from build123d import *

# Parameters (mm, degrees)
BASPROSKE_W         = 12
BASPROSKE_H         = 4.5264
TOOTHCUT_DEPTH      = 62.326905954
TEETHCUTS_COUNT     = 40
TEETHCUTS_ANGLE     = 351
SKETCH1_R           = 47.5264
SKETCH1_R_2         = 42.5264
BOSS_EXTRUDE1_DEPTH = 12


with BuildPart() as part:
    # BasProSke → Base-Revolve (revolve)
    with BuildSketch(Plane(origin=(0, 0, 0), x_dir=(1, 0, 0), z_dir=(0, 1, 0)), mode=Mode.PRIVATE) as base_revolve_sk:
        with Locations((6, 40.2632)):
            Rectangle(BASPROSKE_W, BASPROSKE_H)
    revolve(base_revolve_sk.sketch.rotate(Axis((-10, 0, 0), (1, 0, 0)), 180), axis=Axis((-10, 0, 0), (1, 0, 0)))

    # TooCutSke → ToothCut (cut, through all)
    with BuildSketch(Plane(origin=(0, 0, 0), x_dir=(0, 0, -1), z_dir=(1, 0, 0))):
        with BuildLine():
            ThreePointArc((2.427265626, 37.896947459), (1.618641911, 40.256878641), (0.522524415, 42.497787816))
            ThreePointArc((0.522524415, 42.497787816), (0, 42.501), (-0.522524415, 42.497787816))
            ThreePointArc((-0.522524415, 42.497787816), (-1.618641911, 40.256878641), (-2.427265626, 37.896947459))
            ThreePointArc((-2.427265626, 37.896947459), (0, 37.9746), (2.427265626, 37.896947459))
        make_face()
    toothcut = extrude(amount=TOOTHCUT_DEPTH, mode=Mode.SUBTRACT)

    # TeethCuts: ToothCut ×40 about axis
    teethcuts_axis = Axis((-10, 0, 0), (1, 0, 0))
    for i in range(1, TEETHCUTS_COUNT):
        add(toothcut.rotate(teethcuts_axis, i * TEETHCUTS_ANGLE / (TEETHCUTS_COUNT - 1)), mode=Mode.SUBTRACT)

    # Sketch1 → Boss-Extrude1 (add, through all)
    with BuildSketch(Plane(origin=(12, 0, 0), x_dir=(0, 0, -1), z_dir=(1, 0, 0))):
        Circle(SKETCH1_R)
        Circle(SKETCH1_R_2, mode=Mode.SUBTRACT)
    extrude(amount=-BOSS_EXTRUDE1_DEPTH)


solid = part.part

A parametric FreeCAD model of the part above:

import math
import FreeCAD as App
import Part
import Sketcher


def add_polygon(sketch, points):
    """Adds a closed chain of lines whose ends are joined by coincident constraints."""
    first, n = sketch.GeometryCount, len(points)
    for a, b in zip(points, points[1:] + points[:1]):
        sketch.addGeometry(Part.LineSegment(App.Vector(*a, 0), App.Vector(*b, 0)), False)
    for i in range(n):
        sketch.addConstraint(Sketcher.Constraint("Coincident", first + i, 2, first + (i + 1) % n, 1))

doc = App.newDocument("Part")
params = doc.addObject("Spreadsheet::Sheet", "Params")
for row, (alias, value) in enumerate([
    ("sketch1_width", "12 mm"),
    ("revolution_angle", "360 deg"),
    ("sketch2_radius", "20 mm"),
    ("pad1_length", "12 mm"),
], start=1):
    params.set(f"A{row}", alias)
    params.set(f"B{row}", "=" + value)
    params.setAlias(f"B{row}", alias)

body = doc.addObject("PartDesign::Body", "Body")

# Sketch on XZ plane
sketch1 = body.newObject("Sketcher::SketchObject", "Sketch")
sketch1.AttachmentSupport = (doc.getObject("XZ_Plane"), [""])
sketch1.MapMode = "FlatFace"
add_polygon(sketch1, [(0, -42.5), (0, -38), (12, -38), (12, -42.5)])  # lines 0-3
sketch1.addConstraint([
    Sketcher.Constraint("Vertical", 0),
    Sketcher.Constraint("Horizontal", 1),
    Sketcher.Constraint("Vertical", 2),
    Sketcher.Constraint("Horizontal", 3),
    Sketcher.Constraint("PointOnObject", 0, 2, -2),
    Sketcher.Constraint("DistanceX", 1, 1, 1, 2, 12.0),
    Sketcher.Constraint("DistanceY", 0, 2, -1, 1, 38.0),
    Sketcher.Constraint("DistanceY", 0, 1, 0, 2, 4.5264),
])
sketch1.setExpression("Constraints[9]", "Params.sketch1_width")
revolution = body.newObject("PartDesign::Revolution", "Revolution")
revolution.Profile = sketch1
revolution.ReferenceAxis = (sketch1, ["H_Axis"])
revolution.setExpression("Angle", "Params.revolution_angle")

# Sketch on YZ plane
sketch2 = body.newObject("Sketcher::SketchObject", "Sketch001")
sketch2.AttachmentSupport = (doc.getObject("YZ_Plane"), [""])
sketch2.MapMode = "FlatFace"
sketch2.addGeometry([
    Part.ArcOfCircle(Part.Circle(App.Vector(32.6, 16.9, 0), App.Vector(0, 0, 1), 20), math.radians(-74.66), math.radians(-60.36)),
    Part.ArcOfCircle(Part.Circle(App.Vector(0, 0, 0), App.Vector(0, 0, 1), 42.5), math.radians(-0.7), math.radians(0.7)),
    Part.ArcOfCircle(Part.Circle(App.Vector(32.6, -16.9, 0), App.Vector(0, 0, 1), 20), math.radians(60.36), math.radians(74.66)),
    Part.ArcOfCircle(Part.Circle(App.Vector(0, 0, 0), App.Vector(0, 0, 1), 38), math.radians(-3.66), math.radians(3.66)),
], False)
sketch2.addConstraint([
    Sketcher.Constraint("Coincident", 0, 2, 1, 1),
    Sketcher.Constraint("Coincident", 1, 2, 2, 1),
    Sketcher.Constraint("Coincident", 2, 2, 3, 2),
    Sketcher.Constraint("Coincident", 3, 1, 0, 1),
    Sketcher.Constraint("Coincident", 1, 3, -1, 1),
    Sketcher.Constraint("Coincident", 3, 3, -1, 1),
    Sketcher.Constraint("Equal", 0, 2),
    Sketcher.Constraint("Symmetric", 0, 3, 2, 3, -1),
    Sketcher.Constraint("Radius", 0, 20.0),
    Sketcher.Constraint("Radius", 3, 37.9746),
    Sketcher.Constraint("Radius", 1, 42.501003),
    Sketcher.Constraint("DistanceX", -1, 1, 0, 3, 32.606602),
    Sketcher.Constraint("DistanceY", 2, 3, 0, 2, 16.337829),
])
sketch2.setExpression("Constraints[8]", "Params.sketch2_radius")
pocket1 = body.newObject("PartDesign::Pocket", "Pocket")
pocket1.Profile = sketch2
pocket1.Type = "ThroughAll"
pocket1.Reversed = True
doc.recompute()

polarpattern = body.newObject("PartDesign::PolarPattern", "PolarPattern")
polarpattern.Originals = [pocket1]
polarpattern.Axis = (doc.getObject("X_Axis"), [""])
polarpattern.Angle = 360
polarpattern.Occurrences = 40
body.Tip = polarpattern

# Sketch on YZ plane
sketch3 = body.newObject("Sketcher::SketchObject", "Sketch002")
sketch3.AttachmentSupport = (doc.getObject("YZ_Plane"), [""])
sketch3.MapMode = "FlatFace"
sketch3.AttachmentOffset = App.Placement(App.Vector(0, 0, 12), App.Rotation())
sketch3.addGeometry([
    Part.Circle(App.Vector(0, 0, 0), App.Vector(0, 0, 1), 48),
    Part.Circle(App.Vector(0, 0, 0), App.Vector(0, 0, 1), 43),
], False)
sketch3.addConstraint([
    Sketcher.Constraint("Coincident", 0, 3, -1, 1),
    Sketcher.Constraint("Coincident", 1, 3, -1, 1),
    Sketcher.Constraint("Diameter", 0, 95.0528),
    Sketcher.Constraint("Diameter", 1, 85.0528),
])
pad1 = body.newObject("PartDesign::Pad", "Pad")
pad1.Profile = sketch3
pad1.setExpression("Length", "Params.pad1_length")
pad1.Reversed = True

doc.recompute()
